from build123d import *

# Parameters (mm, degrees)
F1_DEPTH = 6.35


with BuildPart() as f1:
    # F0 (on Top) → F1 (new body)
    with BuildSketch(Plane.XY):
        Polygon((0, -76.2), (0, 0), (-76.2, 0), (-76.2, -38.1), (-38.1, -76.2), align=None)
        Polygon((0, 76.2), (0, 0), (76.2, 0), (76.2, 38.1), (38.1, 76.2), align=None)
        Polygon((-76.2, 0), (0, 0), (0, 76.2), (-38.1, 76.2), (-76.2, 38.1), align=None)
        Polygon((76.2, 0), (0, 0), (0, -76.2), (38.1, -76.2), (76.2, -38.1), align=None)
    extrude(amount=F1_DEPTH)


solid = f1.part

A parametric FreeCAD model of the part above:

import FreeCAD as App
import Part
import Sketcher
Q = App.Units.Quantity

doc = App.newDocument("Part")
body = doc.addObject("PartDesign::Body", "Body")

sketch1 = body.newObject("Sketcher::SketchObject", "Sketch")
sketch1.AttachmentSupport = (doc.getObject("XY_Plane"), [""])
sketch1.MapMode = "FlatFace"
sketch1.addGeometry([
    Part.LineSegment(App.Vector(76.2, 38.1, 0), App.Vector(38.1, 76.2, 0)),
    Part.LineSegment(App.Vector(38.1, 76.2, 0), App.Vector(-38.1, 76.2, 0)),
    Part.LineSegment(App.Vector(-38.1, 76.2, 0), App.Vector(-76.2, 38.1, 0)),
    Part.LineSegment(App.Vector(-76.2, 38.1, 0), App.Vector(-76.2, -38.1, 0)),
    Part.LineSegment(App.Vector(-76.2, -38.1, 0), App.Vector(-38.1, -76.2, 0)),
    Part.LineSegment(App.Vector(-38.1, -76.2, 0), App.Vector(38.1, -76.2, 0)),
    Part.LineSegment(App.Vector(38.1, -76.2, 0), App.Vector(76.2, -38.1, 0)),
    Part.LineSegment(App.Vector(76.2, -38.1, 0), App.Vector(76.2, 38.1, 0)),
], False)
sketch1.addConstraint([
    Sketcher.Constraint("Coincident", 0, 2, 1, 1),
    Sketcher.Constraint("Coincident", 1, 2, 2, 1),
    Sketcher.Constraint("Coincident", 2, 2, 3, 1),
    Sketcher.Constraint("Coincident", 3, 2, 4, 1),
    Sketcher.Constraint("Coincident", 4, 2, 5, 1),
    Sketcher.Constraint("Coincident", 5, 2, 6, 1),
    Sketcher.Constraint("Coincident", 6, 2, 7, 1),
    Sketcher.Constraint("Coincident", 7, 2, 0, 1),
    Sketcher.Constraint("Horizontal", 1),
    Sketcher.Constraint("Vertical", 3),
    Sketcher.Constraint("Horizontal", 5),
    Sketcher.Constraint("Vertical", 7),
    Sketcher.Constraint("Symmetric", 0, 2, 4, 2, -1, 1),
    Sketcher.Constraint("Symmetric", 2, 2, 6, 2, -1, 1),
    Sketcher.Constraint("Perpendicular", 0, 2),
    Sketcher.Constraint("Perpendicular", 2, 4),
    Sketcher.Constraint("Perpendicular", 4, 6),
    Sketcher.Constraint("Horizontal", 3, 2, 6, 2),
    Sketcher.Constraint("Vertical", 1, 2, 4, 2),
    Sketcher.Constraint("Equal", 5, 3),
    Sketcher.Constraint("DistanceX", 1, 2, 1, 1, Q("3 in")),
    Sketcher.Constraint("DistanceY", -1, 1, 0, 2, Q("3 in")),
])
pad1 = body.newObject("PartDesign::Pad", "Pad")
pad1.Profile = sketch1
pad1.Length = Q("0.25 in")

doc.recompute()
